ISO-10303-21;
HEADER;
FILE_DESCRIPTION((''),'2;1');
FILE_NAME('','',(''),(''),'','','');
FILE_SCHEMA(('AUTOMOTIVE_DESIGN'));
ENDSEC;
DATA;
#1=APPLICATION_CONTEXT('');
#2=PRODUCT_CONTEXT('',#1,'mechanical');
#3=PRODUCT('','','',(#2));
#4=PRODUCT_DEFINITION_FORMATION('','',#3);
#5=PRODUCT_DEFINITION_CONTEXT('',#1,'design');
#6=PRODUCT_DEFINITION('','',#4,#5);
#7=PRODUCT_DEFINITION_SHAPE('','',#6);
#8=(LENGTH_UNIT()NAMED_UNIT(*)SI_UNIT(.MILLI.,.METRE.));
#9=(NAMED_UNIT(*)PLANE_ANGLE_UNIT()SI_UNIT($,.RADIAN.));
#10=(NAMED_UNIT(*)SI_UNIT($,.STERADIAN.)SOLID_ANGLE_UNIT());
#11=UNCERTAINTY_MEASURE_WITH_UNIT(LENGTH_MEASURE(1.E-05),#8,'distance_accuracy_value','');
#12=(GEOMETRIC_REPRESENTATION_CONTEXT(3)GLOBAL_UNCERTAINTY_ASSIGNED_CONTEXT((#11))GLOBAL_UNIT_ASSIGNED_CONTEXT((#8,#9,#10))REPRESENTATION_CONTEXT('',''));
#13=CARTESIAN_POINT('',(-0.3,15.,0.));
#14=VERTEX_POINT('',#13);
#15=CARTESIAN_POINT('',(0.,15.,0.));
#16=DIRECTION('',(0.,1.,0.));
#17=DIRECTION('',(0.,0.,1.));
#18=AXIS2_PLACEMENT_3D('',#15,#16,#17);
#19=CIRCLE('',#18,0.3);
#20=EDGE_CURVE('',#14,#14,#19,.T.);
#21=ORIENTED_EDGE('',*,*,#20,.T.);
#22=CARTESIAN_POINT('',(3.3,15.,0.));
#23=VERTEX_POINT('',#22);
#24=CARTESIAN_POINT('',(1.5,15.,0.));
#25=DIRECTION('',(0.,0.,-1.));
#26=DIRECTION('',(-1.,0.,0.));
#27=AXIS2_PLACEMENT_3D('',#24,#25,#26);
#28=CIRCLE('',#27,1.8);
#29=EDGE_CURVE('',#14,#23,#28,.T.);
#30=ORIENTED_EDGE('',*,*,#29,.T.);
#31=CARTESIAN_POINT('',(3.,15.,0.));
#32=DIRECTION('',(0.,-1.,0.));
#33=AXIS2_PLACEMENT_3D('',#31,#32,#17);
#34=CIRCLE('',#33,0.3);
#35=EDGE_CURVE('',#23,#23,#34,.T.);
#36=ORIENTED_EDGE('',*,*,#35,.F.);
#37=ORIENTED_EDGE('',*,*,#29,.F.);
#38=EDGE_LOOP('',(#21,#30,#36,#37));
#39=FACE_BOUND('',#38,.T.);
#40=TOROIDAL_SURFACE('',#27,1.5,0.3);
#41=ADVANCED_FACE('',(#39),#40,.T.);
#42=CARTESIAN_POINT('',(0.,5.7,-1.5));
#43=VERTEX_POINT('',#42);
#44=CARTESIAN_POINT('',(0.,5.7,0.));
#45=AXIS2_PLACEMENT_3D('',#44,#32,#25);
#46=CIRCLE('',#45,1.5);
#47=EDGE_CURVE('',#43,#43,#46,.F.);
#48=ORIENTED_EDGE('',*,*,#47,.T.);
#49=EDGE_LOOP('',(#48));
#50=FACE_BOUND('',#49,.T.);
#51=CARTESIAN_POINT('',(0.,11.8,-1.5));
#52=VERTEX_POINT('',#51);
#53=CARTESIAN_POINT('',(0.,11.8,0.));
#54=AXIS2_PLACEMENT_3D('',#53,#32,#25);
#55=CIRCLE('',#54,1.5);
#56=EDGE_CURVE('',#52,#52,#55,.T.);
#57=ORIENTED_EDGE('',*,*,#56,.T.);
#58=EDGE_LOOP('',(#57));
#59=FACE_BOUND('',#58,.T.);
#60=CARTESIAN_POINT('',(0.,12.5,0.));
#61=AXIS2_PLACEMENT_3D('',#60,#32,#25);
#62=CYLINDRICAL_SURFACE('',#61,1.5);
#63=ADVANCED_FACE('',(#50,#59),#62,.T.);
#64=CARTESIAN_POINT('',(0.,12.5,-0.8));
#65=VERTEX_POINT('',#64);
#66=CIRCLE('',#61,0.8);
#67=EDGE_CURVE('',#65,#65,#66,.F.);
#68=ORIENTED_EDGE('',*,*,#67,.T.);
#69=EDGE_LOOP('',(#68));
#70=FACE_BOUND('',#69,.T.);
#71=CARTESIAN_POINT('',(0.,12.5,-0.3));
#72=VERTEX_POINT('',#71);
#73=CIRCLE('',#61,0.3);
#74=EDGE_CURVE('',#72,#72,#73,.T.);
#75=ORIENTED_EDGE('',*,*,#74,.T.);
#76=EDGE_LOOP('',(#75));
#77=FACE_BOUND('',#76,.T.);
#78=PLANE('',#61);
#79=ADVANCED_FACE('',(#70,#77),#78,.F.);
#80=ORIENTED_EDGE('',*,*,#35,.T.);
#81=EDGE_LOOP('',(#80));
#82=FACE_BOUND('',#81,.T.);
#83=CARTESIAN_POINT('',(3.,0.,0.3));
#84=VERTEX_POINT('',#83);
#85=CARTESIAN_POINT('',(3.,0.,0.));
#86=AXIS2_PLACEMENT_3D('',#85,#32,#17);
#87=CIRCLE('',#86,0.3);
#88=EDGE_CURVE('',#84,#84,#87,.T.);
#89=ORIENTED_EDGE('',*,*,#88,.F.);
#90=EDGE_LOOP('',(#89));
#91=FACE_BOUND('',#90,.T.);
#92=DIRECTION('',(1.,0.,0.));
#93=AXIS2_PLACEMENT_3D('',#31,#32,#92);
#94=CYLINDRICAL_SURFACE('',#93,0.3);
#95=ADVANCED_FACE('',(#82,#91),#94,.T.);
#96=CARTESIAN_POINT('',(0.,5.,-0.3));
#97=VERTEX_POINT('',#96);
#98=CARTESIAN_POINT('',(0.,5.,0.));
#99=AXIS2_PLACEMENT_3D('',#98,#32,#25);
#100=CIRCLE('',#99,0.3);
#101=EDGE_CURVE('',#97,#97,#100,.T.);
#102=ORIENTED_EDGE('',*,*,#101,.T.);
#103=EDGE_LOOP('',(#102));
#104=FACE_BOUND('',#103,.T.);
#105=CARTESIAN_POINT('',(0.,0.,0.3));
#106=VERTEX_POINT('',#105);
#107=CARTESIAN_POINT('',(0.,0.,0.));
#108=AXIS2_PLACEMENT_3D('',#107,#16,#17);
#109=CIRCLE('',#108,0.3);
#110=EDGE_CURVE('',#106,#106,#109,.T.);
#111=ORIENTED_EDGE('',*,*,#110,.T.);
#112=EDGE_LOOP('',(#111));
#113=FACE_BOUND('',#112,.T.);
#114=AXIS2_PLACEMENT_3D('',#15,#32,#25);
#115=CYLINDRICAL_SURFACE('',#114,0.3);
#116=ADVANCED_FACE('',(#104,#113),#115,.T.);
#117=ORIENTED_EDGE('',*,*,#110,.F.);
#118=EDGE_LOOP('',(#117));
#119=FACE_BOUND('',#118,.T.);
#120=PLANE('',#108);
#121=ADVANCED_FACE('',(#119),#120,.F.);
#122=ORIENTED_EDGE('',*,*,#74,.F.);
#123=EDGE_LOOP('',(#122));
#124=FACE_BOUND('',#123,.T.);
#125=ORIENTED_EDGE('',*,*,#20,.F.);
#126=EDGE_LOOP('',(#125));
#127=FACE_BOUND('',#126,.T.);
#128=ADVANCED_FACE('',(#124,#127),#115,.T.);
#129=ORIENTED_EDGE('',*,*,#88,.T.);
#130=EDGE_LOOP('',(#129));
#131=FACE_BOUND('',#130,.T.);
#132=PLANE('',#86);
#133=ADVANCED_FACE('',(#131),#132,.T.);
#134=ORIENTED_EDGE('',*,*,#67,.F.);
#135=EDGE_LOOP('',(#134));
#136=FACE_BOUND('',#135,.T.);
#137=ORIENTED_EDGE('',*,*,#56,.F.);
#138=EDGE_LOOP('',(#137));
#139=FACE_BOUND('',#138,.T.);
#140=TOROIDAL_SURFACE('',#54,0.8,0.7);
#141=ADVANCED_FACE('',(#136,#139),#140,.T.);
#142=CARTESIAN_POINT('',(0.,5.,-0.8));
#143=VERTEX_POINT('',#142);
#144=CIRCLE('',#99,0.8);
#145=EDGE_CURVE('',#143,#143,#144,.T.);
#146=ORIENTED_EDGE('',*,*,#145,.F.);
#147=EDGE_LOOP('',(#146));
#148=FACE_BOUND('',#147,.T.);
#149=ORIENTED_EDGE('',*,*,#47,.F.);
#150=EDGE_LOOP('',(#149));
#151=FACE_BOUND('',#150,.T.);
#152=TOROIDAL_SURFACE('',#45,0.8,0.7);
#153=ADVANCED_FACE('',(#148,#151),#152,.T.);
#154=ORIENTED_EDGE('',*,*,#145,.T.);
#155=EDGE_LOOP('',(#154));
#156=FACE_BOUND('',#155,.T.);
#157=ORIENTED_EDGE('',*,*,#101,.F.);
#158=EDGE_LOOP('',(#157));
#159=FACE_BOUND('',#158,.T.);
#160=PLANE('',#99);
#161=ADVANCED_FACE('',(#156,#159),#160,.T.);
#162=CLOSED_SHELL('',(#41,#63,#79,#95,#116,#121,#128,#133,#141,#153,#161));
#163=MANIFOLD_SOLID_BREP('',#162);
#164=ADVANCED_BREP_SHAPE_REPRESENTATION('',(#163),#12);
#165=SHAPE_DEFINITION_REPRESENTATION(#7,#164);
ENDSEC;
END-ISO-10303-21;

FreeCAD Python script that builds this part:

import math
import FreeCAD as App
import Part
import Sketcher

V = App.Vector


def edges_at(feature, points):
    """Names of the edges that pass closest to the given points."""
    edges = feature.Shape.Edges
    near = lambda p: min(range(len(edges)), key=lambda i: edges[i].distToShape(Part.Vertex(*p))[0])
    return sorted({f"Edge{near(p) + 1}" for p in points})

doc = App.newDocument("Part")
body = doc.addObject("PartDesign::Body", "Body")

# Sketch on XZ plane
sketch1 = body.newObject("Sketcher::SketchObject", "Sketch")
sketch1.AttachmentSupport = (doc.getObject("XZ_Plane"), [""])
sketch1.MapMode = "FlatFace"
sketch1.addGeometry(Part.Circle(V(0, 0, 0), V(0, 0, 1), 0.3), False)
sketch1.addConstraint([
    Sketcher.Constraint("Coincident", 0, 3, -1, 1),
    Sketcher.Constraint("Diameter", 0, 0.6),
])

# Sketch on XY plane
sketch2 = body.newObject("Sketcher::SketchObject", "Sketch001")
sketch2.AttachmentSupport = (doc.getObject("XY_Plane"), [""])
sketch2.MapMode = "FlatFace"
sketch2.addGeometry([
    Part.LineSegment(V(0, 0, 0), V(0, 15, 0)),
    Part.ArcOfCircle(Part.Circle(V(1.5, 15, 0), V(0, 0, 1), 1.5), math.radians(0), math.radians(180)),
    Part.LineSegment(V(3, 15, 0), V(3, 0, 0)),
], False)
sketch2.addConstraint([
    Sketcher.Constraint("Tangent", 0, 2, 1, 2),
    Sketcher.Constraint("Tangent", 1, 1, 2, 1),
    Sketcher.Constraint("Vertical", 0),
    Sketcher.Constraint("Vertical", 2),
    Sketcher.Constraint("Coincident", 0, 1, -1, 1),
    Sketcher.Constraint("PointOnObject", 2, 2, -1),
    Sketcher.Constraint("Radius", 1, 1.5),
    Sketcher.Constraint("DistanceY", 0, 1, 0, 2, 15.0),
])
doc.recompute()

additivepipe = body.newObject("PartDesign::AdditivePipe", "AdditivePipe")
additivepipe.Profile = sketch1
additivepipe.Spine = (sketch2, ["Edge1", "Edge2", "Edge3"])

# Sketch on XZ plane
sketch3 = body.newObject("Sketcher::SketchObject", "Sketch002")
sketch3.AttachmentSupport = (doc.getObject("XZ_Plane"), [""])
sketch3.MapMode = "FlatFace"
sketch3.AttachmentOffset = App.Placement(V(0, 0, -5), App.Rotation())
sketch3.addGeometry(Part.Circle(V(0, 0, 0), V(0, 0, 1), 1.5), False)
sketch3.addConstraint([
    Sketcher.Constraint("Coincident", 0, 3, -1, 1),
    Sketcher.Constraint("Diameter", 0, 3.0),
])
pad1 = body.newObject("PartDesign::Pad", "Pad")
pad1.Profile = sketch3
pad1.Length = 7.5
pad1.Reversed = True
doc.recompute()

fillet = body.newObject("PartDesign::Fillet", "Fillet")
fillet.Base = (pad1, edges_at(pad1, [(0, 5, 1.5), (0, 12.5, 1.5)]))
fillet.Radius = 0.7

doc.recompute()
